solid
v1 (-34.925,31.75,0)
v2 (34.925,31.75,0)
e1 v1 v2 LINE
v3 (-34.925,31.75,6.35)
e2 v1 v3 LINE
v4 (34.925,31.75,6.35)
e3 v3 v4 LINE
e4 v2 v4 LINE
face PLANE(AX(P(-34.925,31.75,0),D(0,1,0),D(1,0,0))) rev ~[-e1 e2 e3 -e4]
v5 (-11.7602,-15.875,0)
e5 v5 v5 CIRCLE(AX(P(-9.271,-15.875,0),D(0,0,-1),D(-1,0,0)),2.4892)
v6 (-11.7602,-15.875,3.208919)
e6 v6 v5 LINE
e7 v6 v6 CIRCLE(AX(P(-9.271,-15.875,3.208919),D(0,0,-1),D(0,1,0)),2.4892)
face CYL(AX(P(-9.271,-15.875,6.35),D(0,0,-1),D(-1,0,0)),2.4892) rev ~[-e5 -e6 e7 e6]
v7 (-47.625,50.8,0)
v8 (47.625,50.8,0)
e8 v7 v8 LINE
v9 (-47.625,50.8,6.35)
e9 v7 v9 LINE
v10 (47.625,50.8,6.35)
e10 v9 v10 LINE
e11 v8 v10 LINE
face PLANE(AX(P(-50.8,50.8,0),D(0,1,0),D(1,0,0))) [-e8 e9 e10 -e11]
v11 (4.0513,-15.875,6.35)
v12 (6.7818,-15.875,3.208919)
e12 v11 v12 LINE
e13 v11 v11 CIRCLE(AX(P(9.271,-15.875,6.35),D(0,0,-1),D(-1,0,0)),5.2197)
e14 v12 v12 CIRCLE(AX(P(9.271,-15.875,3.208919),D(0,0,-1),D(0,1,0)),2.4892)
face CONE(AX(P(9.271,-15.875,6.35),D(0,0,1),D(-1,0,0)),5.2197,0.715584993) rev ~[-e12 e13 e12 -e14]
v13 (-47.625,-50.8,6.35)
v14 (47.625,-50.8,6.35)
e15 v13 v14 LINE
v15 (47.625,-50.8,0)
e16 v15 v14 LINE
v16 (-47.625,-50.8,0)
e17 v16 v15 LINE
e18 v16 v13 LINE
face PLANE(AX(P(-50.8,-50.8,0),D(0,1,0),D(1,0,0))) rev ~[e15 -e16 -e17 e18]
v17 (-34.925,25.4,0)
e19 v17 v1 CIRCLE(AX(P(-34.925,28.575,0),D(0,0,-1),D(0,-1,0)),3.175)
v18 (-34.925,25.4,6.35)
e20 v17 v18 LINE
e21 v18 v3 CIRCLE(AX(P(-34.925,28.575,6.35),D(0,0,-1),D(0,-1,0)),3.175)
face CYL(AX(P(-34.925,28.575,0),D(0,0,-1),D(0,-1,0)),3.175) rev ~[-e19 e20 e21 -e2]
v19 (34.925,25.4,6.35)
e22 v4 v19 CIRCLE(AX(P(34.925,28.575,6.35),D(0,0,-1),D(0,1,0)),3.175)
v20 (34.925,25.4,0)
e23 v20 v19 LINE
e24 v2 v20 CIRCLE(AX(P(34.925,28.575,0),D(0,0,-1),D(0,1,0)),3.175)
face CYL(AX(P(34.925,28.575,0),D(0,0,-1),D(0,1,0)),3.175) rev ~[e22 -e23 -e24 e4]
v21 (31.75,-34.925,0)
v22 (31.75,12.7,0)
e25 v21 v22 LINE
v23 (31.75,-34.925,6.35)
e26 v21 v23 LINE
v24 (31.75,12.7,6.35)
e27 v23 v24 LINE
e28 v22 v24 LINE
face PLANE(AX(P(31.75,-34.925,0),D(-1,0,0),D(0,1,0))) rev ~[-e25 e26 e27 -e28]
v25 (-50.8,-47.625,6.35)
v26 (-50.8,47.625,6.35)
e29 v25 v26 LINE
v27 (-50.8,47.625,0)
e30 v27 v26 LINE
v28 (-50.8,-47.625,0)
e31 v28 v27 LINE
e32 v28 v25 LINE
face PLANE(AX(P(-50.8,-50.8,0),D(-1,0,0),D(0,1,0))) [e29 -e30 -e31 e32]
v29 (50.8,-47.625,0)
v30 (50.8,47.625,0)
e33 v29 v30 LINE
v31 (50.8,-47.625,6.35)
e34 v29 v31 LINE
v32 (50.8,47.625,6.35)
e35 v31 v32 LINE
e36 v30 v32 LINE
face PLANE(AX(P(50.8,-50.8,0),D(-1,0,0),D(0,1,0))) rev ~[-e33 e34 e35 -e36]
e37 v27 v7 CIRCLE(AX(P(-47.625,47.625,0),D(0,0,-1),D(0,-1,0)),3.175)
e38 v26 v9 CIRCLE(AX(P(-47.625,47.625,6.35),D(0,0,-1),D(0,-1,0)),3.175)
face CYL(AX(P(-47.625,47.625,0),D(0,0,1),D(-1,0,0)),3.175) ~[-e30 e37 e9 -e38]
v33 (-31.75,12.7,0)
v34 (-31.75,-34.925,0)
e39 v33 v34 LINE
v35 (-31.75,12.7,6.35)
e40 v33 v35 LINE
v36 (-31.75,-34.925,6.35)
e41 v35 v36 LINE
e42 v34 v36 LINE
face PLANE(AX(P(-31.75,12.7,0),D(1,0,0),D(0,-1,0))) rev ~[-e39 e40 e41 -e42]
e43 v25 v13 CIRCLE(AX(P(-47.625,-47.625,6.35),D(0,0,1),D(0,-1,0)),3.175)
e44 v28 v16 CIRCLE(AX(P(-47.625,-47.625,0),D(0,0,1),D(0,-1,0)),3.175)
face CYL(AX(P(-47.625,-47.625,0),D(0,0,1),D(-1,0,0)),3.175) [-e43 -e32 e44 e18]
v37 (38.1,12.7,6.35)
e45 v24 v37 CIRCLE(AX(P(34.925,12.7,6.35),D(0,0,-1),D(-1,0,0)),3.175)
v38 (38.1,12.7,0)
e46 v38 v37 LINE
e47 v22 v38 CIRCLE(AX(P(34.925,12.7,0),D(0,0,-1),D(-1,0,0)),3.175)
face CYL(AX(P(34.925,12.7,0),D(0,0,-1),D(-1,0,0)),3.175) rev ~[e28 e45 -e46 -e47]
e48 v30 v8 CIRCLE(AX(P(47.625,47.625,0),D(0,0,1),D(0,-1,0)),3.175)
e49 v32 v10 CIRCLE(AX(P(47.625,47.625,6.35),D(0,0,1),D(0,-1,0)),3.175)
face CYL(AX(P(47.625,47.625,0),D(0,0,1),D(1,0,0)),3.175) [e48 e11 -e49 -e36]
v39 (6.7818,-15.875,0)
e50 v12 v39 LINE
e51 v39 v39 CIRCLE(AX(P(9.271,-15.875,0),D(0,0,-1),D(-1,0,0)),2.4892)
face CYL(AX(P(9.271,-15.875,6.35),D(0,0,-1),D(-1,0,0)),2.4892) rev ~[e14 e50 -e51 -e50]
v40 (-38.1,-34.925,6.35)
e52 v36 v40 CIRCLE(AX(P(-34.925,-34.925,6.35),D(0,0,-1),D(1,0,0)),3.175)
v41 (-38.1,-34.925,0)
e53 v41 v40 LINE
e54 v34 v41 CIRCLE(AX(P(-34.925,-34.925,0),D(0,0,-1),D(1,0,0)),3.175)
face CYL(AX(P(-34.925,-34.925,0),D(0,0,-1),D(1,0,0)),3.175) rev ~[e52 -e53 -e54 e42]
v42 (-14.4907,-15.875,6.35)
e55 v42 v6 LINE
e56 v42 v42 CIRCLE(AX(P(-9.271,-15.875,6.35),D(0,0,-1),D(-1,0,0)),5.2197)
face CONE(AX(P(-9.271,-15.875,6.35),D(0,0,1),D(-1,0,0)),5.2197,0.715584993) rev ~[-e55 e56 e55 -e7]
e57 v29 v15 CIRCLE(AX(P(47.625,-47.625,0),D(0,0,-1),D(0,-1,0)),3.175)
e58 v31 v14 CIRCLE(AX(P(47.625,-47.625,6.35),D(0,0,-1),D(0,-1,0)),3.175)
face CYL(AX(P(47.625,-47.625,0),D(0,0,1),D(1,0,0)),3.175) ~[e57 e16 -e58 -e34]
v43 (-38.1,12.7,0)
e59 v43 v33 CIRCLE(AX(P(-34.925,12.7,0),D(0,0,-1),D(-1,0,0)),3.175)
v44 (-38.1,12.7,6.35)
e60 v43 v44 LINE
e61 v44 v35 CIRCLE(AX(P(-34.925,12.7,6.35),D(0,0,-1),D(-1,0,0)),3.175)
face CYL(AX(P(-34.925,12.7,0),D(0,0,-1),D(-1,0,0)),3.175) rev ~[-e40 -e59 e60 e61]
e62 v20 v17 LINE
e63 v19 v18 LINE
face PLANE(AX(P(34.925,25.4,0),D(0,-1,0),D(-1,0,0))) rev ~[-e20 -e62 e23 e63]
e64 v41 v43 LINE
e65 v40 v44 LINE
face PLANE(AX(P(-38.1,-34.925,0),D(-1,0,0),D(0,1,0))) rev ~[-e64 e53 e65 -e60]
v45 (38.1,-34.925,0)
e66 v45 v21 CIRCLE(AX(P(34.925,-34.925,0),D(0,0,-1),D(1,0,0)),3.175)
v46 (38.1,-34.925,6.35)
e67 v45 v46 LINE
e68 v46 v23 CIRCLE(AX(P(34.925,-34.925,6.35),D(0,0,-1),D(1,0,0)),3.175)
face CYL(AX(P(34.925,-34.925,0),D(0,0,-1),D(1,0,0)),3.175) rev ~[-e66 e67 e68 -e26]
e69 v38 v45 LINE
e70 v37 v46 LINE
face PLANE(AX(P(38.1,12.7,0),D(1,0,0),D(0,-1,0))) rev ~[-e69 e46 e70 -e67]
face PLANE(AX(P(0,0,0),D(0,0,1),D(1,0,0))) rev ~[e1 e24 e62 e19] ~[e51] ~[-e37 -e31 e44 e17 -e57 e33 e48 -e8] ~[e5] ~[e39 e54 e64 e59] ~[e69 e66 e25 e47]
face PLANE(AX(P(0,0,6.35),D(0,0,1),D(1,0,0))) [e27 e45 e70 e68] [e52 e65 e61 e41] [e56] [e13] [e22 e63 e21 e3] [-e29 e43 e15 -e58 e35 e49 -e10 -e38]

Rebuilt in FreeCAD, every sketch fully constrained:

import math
import FreeCAD as App
import Part
import Sketcher
from FreeCAD import Vector
Q = App.Units.Quantity


def edges_at(feature, points):
    """Names of the edges that pass closest to the given points."""
    edges = feature.Shape.Edges
    near = lambda p: min(range(len(edges)), key=lambda i: edges[i].distToShape(Part.Vertex(*p))[0])
    return sorted({f"Edge{near(p) + 1}" for p in points})

doc = App.newDocument("Part")
body = doc.addObject("PartDesign::Body", "Body")

# Sketch on XY plane
sketch1 = body.newObject("Sketcher::SketchObject", "Sketch")
sketch1.AttachmentSupport = (doc.getObject("XY_Plane"), [""])
sketch1.MapMode = "FlatFace"
sketch1.addGeometry([
    Part.LineSegment(Vector(-50.8, 50.8, 0), Vector(-50.8, -50.8, 0)),  # 0
    Part.LineSegment(Vector(-50.8, -50.8, 0), Vector(50.8, -50.8, 0)),  # 1
    Part.LineSegment(Vector(50.8, -50.8, 0), Vector(50.8, 50.8, 0)),  # 2
    Part.LineSegment(Vector(50.8, 50.8, 0), Vector(-50.8, 50.8, 0)),  # 3
    Part.ArcOfCircle(Part.Circle(Vector(-34.925, -34.925, 0), Vector(0, 0, 1), 3.175), math.radians(180), math.radians(360)),  # 4
    Part.LineSegment(Vector(-38.1, -34.925, 0), Vector(-38.1, 12.7, 0)),  # 5
    Part.ArcOfCircle(Part.Circle(Vector(-34.925, 12.7, 0), Vector(0, 0, 1), 3.175), math.radians(0), math.radians(180)),  # 6
    Part.LineSegment(Vector(-31.75, 12.7, 0), Vector(-31.75, -34.925, 0)),  # 7
    Part.ArcOfCircle(Part.Circle(Vector(34.925, -34.925, 0), Vector(0, 0, 1), 3.175), math.radians(180), math.radians(360)),  # 8
    Part.LineSegment(Vector(31.75, -34.925, 0), Vector(31.75, 12.7, 0)),  # 9
    Part.ArcOfCircle(Part.Circle(Vector(34.925, 12.7, 0), Vector(0, 0, 1), 3.175), math.radians(0), math.radians(180)),  # 10
    Part.LineSegment(Vector(38.1, 12.7, 0), Vector(38.1, -34.925, 0)),  # 11
    Part.ArcOfCircle(Part.Circle(Vector(34.925, 28.575, 0), Vector(0, 0, 1), 3.175), math.radians(-90), math.radians(90)),  # 12
    Part.LineSegment(Vector(34.925, 25.4, 0), Vector(-34.925, 25.4, 0)),  # 13
    Part.ArcOfCircle(Part.Circle(Vector(-34.925, 28.575, 0), Vector(0, 0, 1), 3.175), math.radians(90), math.radians(270)),  # 14
    Part.LineSegment(Vector(-34.925, 31.75, 0), Vector(34.925, 31.75, 0)),  # 15
], False)
sketch1.addConstraint([
    Sketcher.Constraint("Coincident", 0, 2, 1, 1),
    Sketcher.Constraint("Coincident", 1, 2, 2, 1),
    Sketcher.Constraint("Coincident", 2, 2, 3, 1),
    Sketcher.Constraint("Coincident", 3, 2, 0, 1),
    Sketcher.Constraint("Tangent", 4, 1, 5, 1),
    Sketcher.Constraint("Tangent", 5, 2, 6, 2),
    Sketcher.Constraint("Tangent", 6, 1, 7, 1),
    Sketcher.Constraint("Tangent", 7, 2, 4, 2),
    Sketcher.Constraint("Tangent", 8, 1, 9, 1),
    Sketcher.Constraint("Tangent", 9, 2, 10, 2),
    Sketcher.Constraint("Tangent", 10, 1, 11, 1),
    Sketcher.Constraint("Tangent", 11, 2, 8, 2),
    Sketcher.Constraint("Tangent", 12, 1, 13, 1),
    Sketcher.Constraint("Tangent", 13, 2, 14, 2),
    Sketcher.Constraint("Tangent", 14, 1, 15, 1),
    Sketcher.Constraint("Tangent", 15, 2, 12, 2),
    Sketcher.Constraint("Vertical", 0),
    Sketcher.Constraint("Horizontal", 1),
    Sketcher.Constraint("Vertical", 2),
    Sketcher.Constraint("Horizontal", 3),
    Sketcher.Constraint("Vertical", 5),
    Sketcher.Constraint("Vertical", 7),
    Sketcher.Constraint("Vertical", 9),
    Sketcher.Constraint("Vertical", 11),
    Sketcher.Constraint("Horizontal", 13),
    Sketcher.Constraint("Horizontal", 15),
    Sketcher.Constraint("Equal", 6, 8),
    Sketcher.Constraint("Equal", 10, 12),
    Sketcher.Constraint("Symmetric", 0, 2, 2, 2, -1, 1),
    Sketcher.Constraint("Symmetric", 4, 3, 8, 3, -2),
    Sketcher.Constraint("Horizontal", 6, 3, 10, 3),
    Sketcher.Constraint("Vertical", 10, 3, 12, 3),
    Sketcher.Constraint("Vertical", 6, 3, 14, 3),
    Sketcher.Constraint("Equal", 3, 0),
    Sketcher.Constraint("DistanceX", 1, 1, 1, 2, Q("4 in")),
    Sketcher.Constraint("DistanceY", -1, 1, 12, 1, Q("1 in")),
    Sketcher.Constraint("Radius", 4, Q("0.125 in")),
    Sketcher.Constraint("DistanceX", 13, 2, 13, 1, Q("2.75 in")),
    Sketcher.Constraint("DistanceY", -1, 1, 6, 3, Q("0.5 in")),
    Sketcher.Constraint("DistanceY", 8, 3, 12, 3, Q("2.5 in")),
])
pad1 = body.newObject("PartDesign::Pad", "Pad")
pad1.Profile = sketch1
pad1.Length = Q("0.25 in")

# Sketch on XY plane
sketch2 = body.newObject("Sketcher::SketchObject", "Sketch001")
sketch2.AttachmentSupport = (doc.getObject("XY_Plane"), [""])
sketch2.MapMode = "FlatFace"
sketch2.AttachmentOffset = App.Placement(Vector(0, 0, 0.25 * 25.4), App.Rotation())
sketch2.addGeometry([
    Part.Circle(Vector(-9.271, -15.875, 0), Vector(0, 0, 1), 2.4892),
    Part.Circle(Vector(9.271, -15.875, 0), Vector(0, 0, 1), 2.4892),
], False)
sketch2.addConstraint([
    Sketcher.Constraint("Equal", 0, 1),
    Sketcher.Constraint("Symmetric", 0, 3, 1, 3, -2),
    Sketcher.Constraint("Diameter", 0, Q("0.196 in")),
    Sketcher.Constraint("DistanceX", 0, 3, 1, 3, Q("0.73 in")),
    Sketcher.Constraint("DistanceY", 0, 3, -1, 1, Q("0.625 in")),
])
doc.recompute()
hole = body.newObject("PartDesign::Hole", "Hole")
hole.Profile = sketch2
hole.ThreadType = "None"
hole.Diameter = Q("0.196 in")
hole.DepthType = "ThroughAll"
hole.HoleCutType = "Countersink"
hole.HoleCutDiameter = Q("0.411 in")
hole.HoleCutCountersinkAngle = 82
doc.recompute()

fillet = body.newObject("PartDesign::Fillet", "Fillet")
fillet.Base = (hole, edges_at(hole, [
    (-50.8, -50.8, 3.175),
    (50.8, -50.8, 3.175),
    (-50.8, 50.8, 3.175),
    (50.8, 50.8, 3.175),
]))
fillet.Radius = Q("0.125 in")

doc.recompute()
